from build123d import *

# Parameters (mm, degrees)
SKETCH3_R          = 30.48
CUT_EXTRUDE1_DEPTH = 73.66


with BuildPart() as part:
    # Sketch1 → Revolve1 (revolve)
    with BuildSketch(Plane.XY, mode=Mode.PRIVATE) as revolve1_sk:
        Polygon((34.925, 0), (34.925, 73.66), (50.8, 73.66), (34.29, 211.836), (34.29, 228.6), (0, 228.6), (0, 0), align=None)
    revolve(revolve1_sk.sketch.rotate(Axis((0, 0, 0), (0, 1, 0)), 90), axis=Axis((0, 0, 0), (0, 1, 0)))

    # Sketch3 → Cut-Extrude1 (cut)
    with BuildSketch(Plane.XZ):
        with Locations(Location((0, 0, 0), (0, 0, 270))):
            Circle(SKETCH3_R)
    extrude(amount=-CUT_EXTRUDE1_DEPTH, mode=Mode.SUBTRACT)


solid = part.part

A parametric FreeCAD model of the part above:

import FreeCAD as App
import Part
import Sketcher
Q = App.Units.Quantity


def add_polygon(sketch, points):
    """Adds a closed chain of lines whose ends are joined by coincident constraints."""
    first, n = sketch.GeometryCount, len(points)
    for a, b in zip(points, points[1:] + points[:1]):
        sketch.addGeometry(Part.LineSegment(App.Vector(*a, 0), App.Vector(*b, 0)), False)
    for i in range(n):
        sketch.addConstraint(Sketcher.Constraint("Coincident", first + i, 2, first + (i + 1) % n, 1))

doc = App.newDocument("Part")
body = doc.addObject("PartDesign::Body", "Body")

# Sketch on XY plane
sketch1 = body.newObject("Sketcher::SketchObject", "Sketch")
sketch1.AttachmentSupport = (doc.getObject("XY_Plane"), [""])
sketch1.MapMode = "FlatFace"
add_polygon(sketch1, [(35, 0), (35, 74), (51, 74), (34, 212), (34, 229), (0, 229), (0, 0)])  # lines 0-6
sketch1.addConstraint([
    Sketcher.Constraint("Vertical", 0),
    Sketcher.Constraint("Horizontal", 1),
    Sketcher.Constraint("Vertical", 3),
    Sketcher.Constraint("Horizontal", 4),
    Sketcher.Constraint("Vertical", 5),
    Sketcher.Constraint("Horizontal", 6),
    Sketcher.Constraint("Coincident", 5, 2, -1, 1),
    Sketcher.Constraint("DistanceY", 5, 2, 5, 1, Q("9 in")),
    Sketcher.Constraint("DistanceY", 0, 1, 0, 2, Q("2.9 in")),
    Sketcher.Constraint("DistanceX", -1, 1, 1, 2, Q("2 in")),
    Sketcher.Constraint("DistanceX", 4, 2, 4, 1, Q("1.35 in")),
    Sketcher.Constraint("DistanceY", 3, 1, 3, 2, Q("0.66 in")),
    Sketcher.Constraint("DistanceX", 1, 1, 1, 2, Q("0.625 in")),
])
revolution = body.newObject("PartDesign::Revolution", "Revolution")
revolution.Profile = sketch1
revolution.ReferenceAxis = (sketch1, ["V_Axis"])
revolution.Angle = 360

# Sketch on XZ plane
sketch2 = body.newObject("Sketcher::SketchObject", "Sketch001")
sketch2.AttachmentSupport = (doc.getObject("XZ_Plane"), [""])
sketch2.MapMode = "FlatFace"
sketch2.addGeometry(Part.Circle(App.Vector(0, 0, 0), App.Vector(0, 0, 1), 30), False)
sketch2.addConstraint([
    Sketcher.Constraint("Coincident", 0, 3, -1, 1),
    Sketcher.Constraint("Diameter", 0, Q("2.4 in")),
])
pocket1 = body.newObject("PartDesign::Pocket", "Pocket")
pocket1.Profile = sketch2
pocket1.Length = Q("2.9 in")

doc.recompute()
